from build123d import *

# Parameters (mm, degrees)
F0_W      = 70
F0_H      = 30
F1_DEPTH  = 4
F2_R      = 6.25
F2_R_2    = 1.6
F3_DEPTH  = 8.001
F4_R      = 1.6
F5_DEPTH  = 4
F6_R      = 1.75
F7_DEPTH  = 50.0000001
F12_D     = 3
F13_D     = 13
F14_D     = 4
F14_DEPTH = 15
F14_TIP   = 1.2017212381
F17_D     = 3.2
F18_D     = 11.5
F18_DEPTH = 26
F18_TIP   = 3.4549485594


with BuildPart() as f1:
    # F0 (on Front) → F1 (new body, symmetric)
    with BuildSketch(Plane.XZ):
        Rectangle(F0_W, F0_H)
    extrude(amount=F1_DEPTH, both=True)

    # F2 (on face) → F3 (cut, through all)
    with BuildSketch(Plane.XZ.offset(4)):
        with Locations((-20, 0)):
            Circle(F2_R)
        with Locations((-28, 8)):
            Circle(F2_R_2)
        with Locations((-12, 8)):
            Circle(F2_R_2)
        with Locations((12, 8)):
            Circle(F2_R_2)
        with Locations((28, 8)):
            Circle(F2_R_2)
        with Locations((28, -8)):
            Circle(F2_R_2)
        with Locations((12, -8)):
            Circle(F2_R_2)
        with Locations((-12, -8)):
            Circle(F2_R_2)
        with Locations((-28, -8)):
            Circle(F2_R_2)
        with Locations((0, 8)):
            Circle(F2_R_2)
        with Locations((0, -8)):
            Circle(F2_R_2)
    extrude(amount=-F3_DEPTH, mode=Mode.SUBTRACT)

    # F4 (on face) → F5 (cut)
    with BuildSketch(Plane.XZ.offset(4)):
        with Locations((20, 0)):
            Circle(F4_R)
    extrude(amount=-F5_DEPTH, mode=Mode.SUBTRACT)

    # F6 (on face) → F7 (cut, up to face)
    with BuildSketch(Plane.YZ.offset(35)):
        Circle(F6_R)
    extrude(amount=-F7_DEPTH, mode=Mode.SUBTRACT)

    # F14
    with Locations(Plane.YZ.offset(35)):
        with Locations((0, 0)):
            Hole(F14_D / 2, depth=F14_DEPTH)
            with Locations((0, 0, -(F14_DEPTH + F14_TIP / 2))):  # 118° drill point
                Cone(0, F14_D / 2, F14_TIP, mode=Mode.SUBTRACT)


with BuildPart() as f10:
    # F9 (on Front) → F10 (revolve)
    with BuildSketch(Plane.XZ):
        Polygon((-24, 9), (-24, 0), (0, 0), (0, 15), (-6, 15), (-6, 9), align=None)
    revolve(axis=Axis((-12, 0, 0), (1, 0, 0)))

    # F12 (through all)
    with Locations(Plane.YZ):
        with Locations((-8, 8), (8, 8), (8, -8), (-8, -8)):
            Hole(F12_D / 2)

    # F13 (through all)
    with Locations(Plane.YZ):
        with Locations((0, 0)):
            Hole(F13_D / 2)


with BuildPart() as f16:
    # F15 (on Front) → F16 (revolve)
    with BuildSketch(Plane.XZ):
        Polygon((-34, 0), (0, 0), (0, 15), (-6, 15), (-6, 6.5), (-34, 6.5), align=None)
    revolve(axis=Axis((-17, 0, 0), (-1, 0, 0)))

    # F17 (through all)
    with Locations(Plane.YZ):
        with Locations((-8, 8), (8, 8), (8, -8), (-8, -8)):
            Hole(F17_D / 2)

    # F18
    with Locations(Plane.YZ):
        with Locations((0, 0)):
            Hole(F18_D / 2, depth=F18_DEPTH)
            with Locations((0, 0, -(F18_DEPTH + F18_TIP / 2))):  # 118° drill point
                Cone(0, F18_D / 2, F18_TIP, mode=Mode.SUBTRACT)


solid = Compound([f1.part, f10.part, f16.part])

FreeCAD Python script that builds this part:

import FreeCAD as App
import Part
import Sketcher

V = App.Vector


def add_polygon(sketch, points):
    """Adds a closed chain of lines whose ends are joined by coincident constraints."""
    first, n = sketch.GeometryCount, len(points)
    for a, b in zip(points, points[1:] + points[:1]):
        sketch.addGeometry(Part.LineSegment(App.Vector(*a, 0), App.Vector(*b, 0)), False)
    for i in range(n):
        sketch.addConstraint(Sketcher.Constraint("Coincident", first + i, 2, first + (i + 1) % n, 1))

doc = App.newDocument("Part")
body = doc.addObject("PartDesign::Body", "Body")

sketch1 = doc.addObject("Sketcher::SketchObject", "Sketch")
body.addObject(sketch1)
sketch1.AttachmentSupport = (doc.XZ_Plane, [""])
sketch1.MapMode = "FlatFace"
add_polygon(sketch1, [(-35, 15), (-35, -15), (35, -15), (35, 15)])
sketch1.addConstraint([
    Sketcher.Constraint("Vertical", 0),
    Sketcher.Constraint("Horizontal", 1),
    Sketcher.Constraint("Vertical", 2),
    Sketcher.Constraint("Horizontal", 3),
    Sketcher.Constraint("Symmetric", 0, 2, 2, 2, -1, 1),
    Sketcher.Constraint("DistanceX", 1, 1, 1, 2, 70.0),
    Sketcher.Constraint("DistanceY", 0, 2, 0, 1, 30.0),
])
pad1 = doc.addObject("PartDesign::Pad", "Pad")
body.addObject(pad1)
pad1.Profile = sketch1
pad1.Length = 8
pad1.Midplane = True

sketch2 = doc.addObject("Sketcher::SketchObject", "Sketch001")
body.addObject(sketch2)
sketch2.AttachmentSupport = (doc.XZ_Plane, [""])
sketch2.MapMode = "FlatFace"
sketch2.AttachmentOffset = App.Placement(V(0, 0, 4), App.Rotation())
sketch2.addGeometry([
    Part.Circle(V(-20, 0, 0), V(0, 0, 1), 6.2),
    Part.Circle(V(-28, 8, 0), V(0, 0, 1), 1.6),
    Part.Circle(V(-12, 8, 0), V(0, 0, 1), 1.6),
    Part.Circle(V(12, 8, 0), V(0, 0, 1), 1.6),
    Part.Circle(V(28, 8, 0), V(0, 0, 1), 1.6),
    Part.Circle(V(28, -8, 0), V(0, 0, 1), 1.6),
    Part.Circle(V(12, -8, 0), V(0, 0, 1), 1.6),
    Part.Circle(V(-12, -8, 0), V(0, 0, 1), 1.6),
    Part.Circle(V(-28, -8, 0), V(0, 0, 1), 1.6),
    Part.Circle(V(0, 8, 0), V(0, 0, 1), 1.6),
    Part.Circle(V(0, -8, 0), V(0, 0, 1), 1.6),
], False)
sketch2.addConstraint([
    Sketcher.Constraint("Equal", 1, 2),
    Sketcher.Constraint("Equal", 2, 3),
    Sketcher.Constraint("Equal", 3, 4),
    Sketcher.Constraint("Equal", 4, 5),
    Sketcher.Constraint("Equal", 5, 6),
    Sketcher.Constraint("Equal", 6, 7),
    Sketcher.Constraint("Equal", 7, 8),
    Sketcher.Constraint("Equal", 8, 9),
    Sketcher.Constraint("Equal", 9, 10),
    Sketcher.Constraint("Symmetric", 1, 3, 5, 3, -1, 1),
    Sketcher.Constraint("Symmetric", 2, 3, 6, 3, -1, 1),
    Sketcher.Constraint("Symmetric", 3, 3, 7, 3, -1, 1),
    Sketcher.Constraint("Symmetric", 4, 3, 8, 3, -1, 1),
    Sketcher.Constraint("Symmetric", 9, 3, 10, 3, -1, 1),
    Sketcher.Constraint("Symmetric", 2, 3, 3, 3, -2),
    Sketcher.Constraint("Symmetric", 1, 3, 4, 3, -2),
    Sketcher.Constraint("PointOnObject", 0, 3, -1),
    Sketcher.Constraint("PointOnObject", 9, 3, -2),
    Sketcher.Constraint("Horizontal", 1, 3, 2, 3),
    Sketcher.Constraint("Horizontal", 4, 3, 9, 3),
    Sketcher.Constraint("Diameter", 0, 12.5),
    Sketcher.Constraint("Diameter", 1, 3.2),
    Sketcher.Constraint("DistanceX", 0, 3, -1, 1, 20.0),
    Sketcher.Constraint("DistanceX", 1, 3, -1, 1, 28.0),
    Sketcher.Constraint("DistanceY", -1, 1, 1, 3, 8.0),
    Sketcher.Constraint("DistanceX", 2, 3, -1, 1, 12.0),
])
pocket1 = doc.addObject("PartDesign::Pocket", "Pocket")
body.addObject(pocket1)
pocket1.Profile = sketch2
pocket1.Type = "ThroughAll"

sketch3 = doc.addObject("Sketcher::SketchObject", "Sketch002")
body.addObject(sketch3)
sketch3.AttachmentSupport = (doc.XZ_Plane, [""])
sketch3.MapMode = "FlatFace"
sketch3.AttachmentOffset = App.Placement(V(0, 0, 4), App.Rotation())
sketch3.addGeometry(Part.Circle(V(20, 0, 0), V(0, 0, 1), 1.6), False)
sketch3.addConstraint([
    Sketcher.Constraint("PointOnObject", 0, 3, -1),
    Sketcher.Constraint("Diameter", 0, 3.2),
    Sketcher.Constraint("DistanceX", -1, 1, 0, 3, 20.0),
])
pocket2 = doc.addObject("PartDesign::Pocket", "Pocket001")
body.addObject(pocket2)
pocket2.Profile = sketch3
pocket2.Length = 4

sketch4 = doc.addObject("Sketcher::SketchObject", "Sketch003")
body.addObject(sketch4)
sketch4.AttachmentSupport = (doc.YZ_Plane, [""])
sketch4.MapMode = "FlatFace"
sketch4.AttachmentOffset = App.Placement(V(0, 0, 35), App.Rotation())
sketch4.addGeometry(Part.Circle(V(0, 0, 0), V(0, 0, 1), 1.8), False)
sketch4.addConstraint([
    Sketcher.Constraint("Coincident", 0, 3, -1, 1),
    Sketcher.Constraint("Diameter", 0, 3.5),
])
pocket3 = doc.addObject("PartDesign::Pocket", "Pocket002")
body.addObject(pocket3)
pocket3.Profile = sketch4
pocket3.Length = 50

sketch5 = doc.addObject("Sketcher::SketchObject", "Sketch004")
body.addObject(sketch5)
sketch5.AttachmentSupport = (doc.YZ_Plane, [""])
sketch5.MapMode = "FlatFace"
sketch5.AttachmentOffset = App.Placement(V(0, 0, 35), App.Rotation())
sketch5.addGeometry(Part.Circle(V(0, 0, 0), V(0, 0, 1), 2), False)
sketch5.addConstraint([
    Sketcher.Constraint("Coincident", 0, 3, -1, 1),
    Sketcher.Constraint("Diameter", 0, 4.0),
])
doc.recompute()
hole = doc.addObject("PartDesign::Hole", "Hole")
body.addObject(hole)
hole.Profile = sketch5
hole.ThreadType = "None"
hole.Diameter = 4
hole.DepthType = "Dimension"
hole.Depth = 15
hole.DrillPoint = "Angled"
hole.DrillPointAngle = 118
body2 = doc.addObject("PartDesign::Body", "Body001")

sketch6 = doc.addObject("Sketcher::SketchObject", "Sketch005")
body2.addObject(sketch6)
sketch6.AttachmentSupport = (doc.getObject("XZ_Plane001"), [""])
sketch6.MapMode = "FlatFace"
add_polygon(sketch6, [(-24, 9), (-24, 0), (0, 0), (0, 15), (-6, 15), (-6, 9)])
sketch6.addConstraint([
    Sketcher.Constraint("Vertical", 0),
    Sketcher.Constraint("Horizontal", 1),
    Sketcher.Constraint("Vertical", 2),
    Sketcher.Constraint("Horizontal", 3),
    Sketcher.Constraint("Vertical", 4),
    Sketcher.Constraint("Horizontal", 5),
    Sketcher.Constraint("Coincident", 1, 2, -1, 1),
    Sketcher.Constraint("Equal", 3, 4),
    Sketcher.Constraint("DistanceX", 1, 1, 1, 2, 24.0),
    Sketcher.Constraint("DistanceX", 3, 2, 3, 1, 6.0),
    Sketcher.Constraint("DistanceY", 0, 2, 0, 1, 9.0),
])
revolution = doc.addObject("PartDesign::Revolution", "Revolution")
body2.addObject(revolution)
revolution.Profile = sketch6
revolution.ReferenceAxis = (sketch6, ["H_Axis"])
revolution.Angle = 360

sketch7 = doc.addObject("Sketcher::SketchObject", "Sketch006")
body2.addObject(sketch7)
sketch7.AttachmentSupport = (doc.getObject("YZ_Plane001"), [""])
sketch7.MapMode = "FlatFace"
sketch7.addGeometry([
    Part.Circle(V(-8, 8, 0), V(0, 0, 1), 1.5),
    Part.Circle(V(8, 8, 0), V(0, 0, 1), 1.5),
    Part.Circle(V(8, -8, 0), V(0, 0, 1), 1.5),
    Part.Circle(V(-8, -8, 0), V(0, 0, 1), 1.5),
], False)
sketch7.addConstraint([
    Sketcher.Constraint("Equal", 0, 1),
    Sketcher.Constraint("Equal", 1, 2),
    Sketcher.Constraint("Equal", 2, 3),
    Sketcher.Constraint("Symmetric", 0, 3, 2, 3, -1, 1),
    Sketcher.Constraint("Symmetric", 1, 3, 3, 3, -1, 1),
    Sketcher.Constraint("Symmetric", 0, 3, 1, 3, -2),
    Sketcher.Constraint("Diameter", 0, 3.0),
    Sketcher.Constraint("DistanceX", 0, 3, -1, 1, 8.0),
    Sketcher.Constraint("DistanceY", -1, 1, 0, 3, 8.0),
])
doc.recompute()
hole2 = doc.addObject("PartDesign::Hole", "Hole001")
body2.addObject(hole2)
hole2.Profile = sketch7
hole2.ThreadType = "None"
hole2.Diameter = 3
hole2.DepthType = "ThroughAll"

sketch8 = doc.addObject("Sketcher::SketchObject", "Sketch007")
body2.addObject(sketch8)
sketch8.AttachmentSupport = (doc.getObject("YZ_Plane001"), [""])
sketch8.MapMode = "FlatFace"
sketch8.addGeometry(Part.Circle(V(0, 0, 0), V(0, 0, 1), 6), False)
sketch8.addConstraint([
    Sketcher.Constraint("Coincident", 0, 3, -1, 1),
    Sketcher.Constraint("Diameter", 0, 13.0),
])
doc.recompute()
hole3 = doc.addObject("PartDesign::Hole", "Hole002")
body2.addObject(hole3)
hole3.Profile = sketch8
hole3.ThreadType = "None"
hole3.Diameter = 13
hole3.DepthType = "ThroughAll"
body3 = doc.addObject("PartDesign::Body", "Body002")

sketch9 = doc.addObject("Sketcher::SketchObject", "Sketch008")
body3.addObject(sketch9)
sketch9.AttachmentSupport = (doc.getObject("XZ_Plane002"), [""])
sketch9.MapMode = "FlatFace"
add_polygon(sketch9, [(-34, 0), (0, 0), (0, 15), (-6, 15), (-6, 6), (-34, 6)])
sketch9.addConstraint([
    Sketcher.Constraint("Horizontal", 0),
    Sketcher.Constraint("Vertical", 1),
    Sketcher.Constraint("Horizontal", 2),
    Sketcher.Constraint("Vertical", 3),
    Sketcher.Constraint("Horizontal", 4),
    Sketcher.Constraint("Vertical", 5),
    Sketcher.Constraint("Coincident", 0, 2, -1, 1),
    Sketcher.Constraint("DistanceX", 0, 1, 0, 2, 34.0),
    Sketcher.Constraint("DistanceX", 2, 2, 2, 1, 6.0),
    Sketcher.Constraint("DistanceY", 1, 1, 1, 2, 15.0),
    Sketcher.Constraint("DistanceY", 3, 2, 3, 1, 8.5),
])
revolution2 = doc.addObject("PartDesign::Revolution", "Revolution001")
body3.addObject(revolution2)
revolution2.Profile = sketch9
revolution2.ReferenceAxis = (sketch9, ["H_Axis"])
revolution2.Angle = 360

sketch10 = doc.addObject("Sketcher::SketchObject", "Sketch009")
body3.addObject(sketch10)
sketch10.AttachmentSupport = (doc.getObject("YZ_Plane002"), [""])
sketch10.MapMode = "FlatFace"
sketch10.addGeometry([
    Part.Circle(V(-8, 8, 0), V(0, 0, 1), 1.6),
    Part.Circle(V(8, 8, 0), V(0, 0, 1), 1.6),
    Part.Circle(V(8, -8, 0), V(0, 0, 1), 1.6),
    Part.Circle(V(-8, -8, 0), V(0, 0, 1), 1.6),
], False)
sketch10.addConstraint([
    Sketcher.Constraint("Equal", 0, 1),
    Sketcher.Constraint("Equal", 1, 2),
    Sketcher.Constraint("Equal", 2, 3),
    Sketcher.Constraint("Symmetric", 0, 3, 2, 3, -1, 1),
    Sketcher.Constraint("Symmetric", 1, 3, 3, 3, -1, 1),
    Sketcher.Constraint("Symmetric", 0, 3, 1, 3, -2),
    Sketcher.Constraint("Diameter", 0, 3.2),
    Sketcher.Constraint("DistanceX", 0, 3, -1, 1, 8.0),
    Sketcher.Constraint("DistanceY", -1, 1, 0, 3, 8.0),
])
doc.recompute()
hole4 = doc.addObject("PartDesign::Hole", "Hole003")
body3.addObject(hole4)
hole4.Profile = sketch10
hole4.ThreadType = "None"
hole4.Diameter = 3.2
hole4.DepthType = "ThroughAll"

sketch11 = doc.addObject("Sketcher::SketchObject", "Sketch010")
body3.addObject(sketch11)
sketch11.AttachmentSupport = (doc.getObject("YZ_Plane002"), [""])
sketch11.MapMode = "FlatFace"
sketch11.addGeometry(Part.Circle(V(0, 0, 0), V(0, 0, 1), 6), False)
sketch11.addConstraint([
    Sketcher.Constraint("Coincident", 0, 3, -1, 1),
    Sketcher.Constraint("Diameter", 0, 11.5),
])
doc.recompute()
hole5 = doc.addObject("PartDesign::Hole", "Hole004")
body3.addObject(hole5)
hole5.Profile = sketch11
hole5.ThreadType = "None"
hole5.Diameter = 11.5
hole5.DepthType = "Dimension"
hole5.Depth = 26
hole5.DrillPoint = "Angled"
hole5.DrillPointAngle = 118

doc.recompute()
